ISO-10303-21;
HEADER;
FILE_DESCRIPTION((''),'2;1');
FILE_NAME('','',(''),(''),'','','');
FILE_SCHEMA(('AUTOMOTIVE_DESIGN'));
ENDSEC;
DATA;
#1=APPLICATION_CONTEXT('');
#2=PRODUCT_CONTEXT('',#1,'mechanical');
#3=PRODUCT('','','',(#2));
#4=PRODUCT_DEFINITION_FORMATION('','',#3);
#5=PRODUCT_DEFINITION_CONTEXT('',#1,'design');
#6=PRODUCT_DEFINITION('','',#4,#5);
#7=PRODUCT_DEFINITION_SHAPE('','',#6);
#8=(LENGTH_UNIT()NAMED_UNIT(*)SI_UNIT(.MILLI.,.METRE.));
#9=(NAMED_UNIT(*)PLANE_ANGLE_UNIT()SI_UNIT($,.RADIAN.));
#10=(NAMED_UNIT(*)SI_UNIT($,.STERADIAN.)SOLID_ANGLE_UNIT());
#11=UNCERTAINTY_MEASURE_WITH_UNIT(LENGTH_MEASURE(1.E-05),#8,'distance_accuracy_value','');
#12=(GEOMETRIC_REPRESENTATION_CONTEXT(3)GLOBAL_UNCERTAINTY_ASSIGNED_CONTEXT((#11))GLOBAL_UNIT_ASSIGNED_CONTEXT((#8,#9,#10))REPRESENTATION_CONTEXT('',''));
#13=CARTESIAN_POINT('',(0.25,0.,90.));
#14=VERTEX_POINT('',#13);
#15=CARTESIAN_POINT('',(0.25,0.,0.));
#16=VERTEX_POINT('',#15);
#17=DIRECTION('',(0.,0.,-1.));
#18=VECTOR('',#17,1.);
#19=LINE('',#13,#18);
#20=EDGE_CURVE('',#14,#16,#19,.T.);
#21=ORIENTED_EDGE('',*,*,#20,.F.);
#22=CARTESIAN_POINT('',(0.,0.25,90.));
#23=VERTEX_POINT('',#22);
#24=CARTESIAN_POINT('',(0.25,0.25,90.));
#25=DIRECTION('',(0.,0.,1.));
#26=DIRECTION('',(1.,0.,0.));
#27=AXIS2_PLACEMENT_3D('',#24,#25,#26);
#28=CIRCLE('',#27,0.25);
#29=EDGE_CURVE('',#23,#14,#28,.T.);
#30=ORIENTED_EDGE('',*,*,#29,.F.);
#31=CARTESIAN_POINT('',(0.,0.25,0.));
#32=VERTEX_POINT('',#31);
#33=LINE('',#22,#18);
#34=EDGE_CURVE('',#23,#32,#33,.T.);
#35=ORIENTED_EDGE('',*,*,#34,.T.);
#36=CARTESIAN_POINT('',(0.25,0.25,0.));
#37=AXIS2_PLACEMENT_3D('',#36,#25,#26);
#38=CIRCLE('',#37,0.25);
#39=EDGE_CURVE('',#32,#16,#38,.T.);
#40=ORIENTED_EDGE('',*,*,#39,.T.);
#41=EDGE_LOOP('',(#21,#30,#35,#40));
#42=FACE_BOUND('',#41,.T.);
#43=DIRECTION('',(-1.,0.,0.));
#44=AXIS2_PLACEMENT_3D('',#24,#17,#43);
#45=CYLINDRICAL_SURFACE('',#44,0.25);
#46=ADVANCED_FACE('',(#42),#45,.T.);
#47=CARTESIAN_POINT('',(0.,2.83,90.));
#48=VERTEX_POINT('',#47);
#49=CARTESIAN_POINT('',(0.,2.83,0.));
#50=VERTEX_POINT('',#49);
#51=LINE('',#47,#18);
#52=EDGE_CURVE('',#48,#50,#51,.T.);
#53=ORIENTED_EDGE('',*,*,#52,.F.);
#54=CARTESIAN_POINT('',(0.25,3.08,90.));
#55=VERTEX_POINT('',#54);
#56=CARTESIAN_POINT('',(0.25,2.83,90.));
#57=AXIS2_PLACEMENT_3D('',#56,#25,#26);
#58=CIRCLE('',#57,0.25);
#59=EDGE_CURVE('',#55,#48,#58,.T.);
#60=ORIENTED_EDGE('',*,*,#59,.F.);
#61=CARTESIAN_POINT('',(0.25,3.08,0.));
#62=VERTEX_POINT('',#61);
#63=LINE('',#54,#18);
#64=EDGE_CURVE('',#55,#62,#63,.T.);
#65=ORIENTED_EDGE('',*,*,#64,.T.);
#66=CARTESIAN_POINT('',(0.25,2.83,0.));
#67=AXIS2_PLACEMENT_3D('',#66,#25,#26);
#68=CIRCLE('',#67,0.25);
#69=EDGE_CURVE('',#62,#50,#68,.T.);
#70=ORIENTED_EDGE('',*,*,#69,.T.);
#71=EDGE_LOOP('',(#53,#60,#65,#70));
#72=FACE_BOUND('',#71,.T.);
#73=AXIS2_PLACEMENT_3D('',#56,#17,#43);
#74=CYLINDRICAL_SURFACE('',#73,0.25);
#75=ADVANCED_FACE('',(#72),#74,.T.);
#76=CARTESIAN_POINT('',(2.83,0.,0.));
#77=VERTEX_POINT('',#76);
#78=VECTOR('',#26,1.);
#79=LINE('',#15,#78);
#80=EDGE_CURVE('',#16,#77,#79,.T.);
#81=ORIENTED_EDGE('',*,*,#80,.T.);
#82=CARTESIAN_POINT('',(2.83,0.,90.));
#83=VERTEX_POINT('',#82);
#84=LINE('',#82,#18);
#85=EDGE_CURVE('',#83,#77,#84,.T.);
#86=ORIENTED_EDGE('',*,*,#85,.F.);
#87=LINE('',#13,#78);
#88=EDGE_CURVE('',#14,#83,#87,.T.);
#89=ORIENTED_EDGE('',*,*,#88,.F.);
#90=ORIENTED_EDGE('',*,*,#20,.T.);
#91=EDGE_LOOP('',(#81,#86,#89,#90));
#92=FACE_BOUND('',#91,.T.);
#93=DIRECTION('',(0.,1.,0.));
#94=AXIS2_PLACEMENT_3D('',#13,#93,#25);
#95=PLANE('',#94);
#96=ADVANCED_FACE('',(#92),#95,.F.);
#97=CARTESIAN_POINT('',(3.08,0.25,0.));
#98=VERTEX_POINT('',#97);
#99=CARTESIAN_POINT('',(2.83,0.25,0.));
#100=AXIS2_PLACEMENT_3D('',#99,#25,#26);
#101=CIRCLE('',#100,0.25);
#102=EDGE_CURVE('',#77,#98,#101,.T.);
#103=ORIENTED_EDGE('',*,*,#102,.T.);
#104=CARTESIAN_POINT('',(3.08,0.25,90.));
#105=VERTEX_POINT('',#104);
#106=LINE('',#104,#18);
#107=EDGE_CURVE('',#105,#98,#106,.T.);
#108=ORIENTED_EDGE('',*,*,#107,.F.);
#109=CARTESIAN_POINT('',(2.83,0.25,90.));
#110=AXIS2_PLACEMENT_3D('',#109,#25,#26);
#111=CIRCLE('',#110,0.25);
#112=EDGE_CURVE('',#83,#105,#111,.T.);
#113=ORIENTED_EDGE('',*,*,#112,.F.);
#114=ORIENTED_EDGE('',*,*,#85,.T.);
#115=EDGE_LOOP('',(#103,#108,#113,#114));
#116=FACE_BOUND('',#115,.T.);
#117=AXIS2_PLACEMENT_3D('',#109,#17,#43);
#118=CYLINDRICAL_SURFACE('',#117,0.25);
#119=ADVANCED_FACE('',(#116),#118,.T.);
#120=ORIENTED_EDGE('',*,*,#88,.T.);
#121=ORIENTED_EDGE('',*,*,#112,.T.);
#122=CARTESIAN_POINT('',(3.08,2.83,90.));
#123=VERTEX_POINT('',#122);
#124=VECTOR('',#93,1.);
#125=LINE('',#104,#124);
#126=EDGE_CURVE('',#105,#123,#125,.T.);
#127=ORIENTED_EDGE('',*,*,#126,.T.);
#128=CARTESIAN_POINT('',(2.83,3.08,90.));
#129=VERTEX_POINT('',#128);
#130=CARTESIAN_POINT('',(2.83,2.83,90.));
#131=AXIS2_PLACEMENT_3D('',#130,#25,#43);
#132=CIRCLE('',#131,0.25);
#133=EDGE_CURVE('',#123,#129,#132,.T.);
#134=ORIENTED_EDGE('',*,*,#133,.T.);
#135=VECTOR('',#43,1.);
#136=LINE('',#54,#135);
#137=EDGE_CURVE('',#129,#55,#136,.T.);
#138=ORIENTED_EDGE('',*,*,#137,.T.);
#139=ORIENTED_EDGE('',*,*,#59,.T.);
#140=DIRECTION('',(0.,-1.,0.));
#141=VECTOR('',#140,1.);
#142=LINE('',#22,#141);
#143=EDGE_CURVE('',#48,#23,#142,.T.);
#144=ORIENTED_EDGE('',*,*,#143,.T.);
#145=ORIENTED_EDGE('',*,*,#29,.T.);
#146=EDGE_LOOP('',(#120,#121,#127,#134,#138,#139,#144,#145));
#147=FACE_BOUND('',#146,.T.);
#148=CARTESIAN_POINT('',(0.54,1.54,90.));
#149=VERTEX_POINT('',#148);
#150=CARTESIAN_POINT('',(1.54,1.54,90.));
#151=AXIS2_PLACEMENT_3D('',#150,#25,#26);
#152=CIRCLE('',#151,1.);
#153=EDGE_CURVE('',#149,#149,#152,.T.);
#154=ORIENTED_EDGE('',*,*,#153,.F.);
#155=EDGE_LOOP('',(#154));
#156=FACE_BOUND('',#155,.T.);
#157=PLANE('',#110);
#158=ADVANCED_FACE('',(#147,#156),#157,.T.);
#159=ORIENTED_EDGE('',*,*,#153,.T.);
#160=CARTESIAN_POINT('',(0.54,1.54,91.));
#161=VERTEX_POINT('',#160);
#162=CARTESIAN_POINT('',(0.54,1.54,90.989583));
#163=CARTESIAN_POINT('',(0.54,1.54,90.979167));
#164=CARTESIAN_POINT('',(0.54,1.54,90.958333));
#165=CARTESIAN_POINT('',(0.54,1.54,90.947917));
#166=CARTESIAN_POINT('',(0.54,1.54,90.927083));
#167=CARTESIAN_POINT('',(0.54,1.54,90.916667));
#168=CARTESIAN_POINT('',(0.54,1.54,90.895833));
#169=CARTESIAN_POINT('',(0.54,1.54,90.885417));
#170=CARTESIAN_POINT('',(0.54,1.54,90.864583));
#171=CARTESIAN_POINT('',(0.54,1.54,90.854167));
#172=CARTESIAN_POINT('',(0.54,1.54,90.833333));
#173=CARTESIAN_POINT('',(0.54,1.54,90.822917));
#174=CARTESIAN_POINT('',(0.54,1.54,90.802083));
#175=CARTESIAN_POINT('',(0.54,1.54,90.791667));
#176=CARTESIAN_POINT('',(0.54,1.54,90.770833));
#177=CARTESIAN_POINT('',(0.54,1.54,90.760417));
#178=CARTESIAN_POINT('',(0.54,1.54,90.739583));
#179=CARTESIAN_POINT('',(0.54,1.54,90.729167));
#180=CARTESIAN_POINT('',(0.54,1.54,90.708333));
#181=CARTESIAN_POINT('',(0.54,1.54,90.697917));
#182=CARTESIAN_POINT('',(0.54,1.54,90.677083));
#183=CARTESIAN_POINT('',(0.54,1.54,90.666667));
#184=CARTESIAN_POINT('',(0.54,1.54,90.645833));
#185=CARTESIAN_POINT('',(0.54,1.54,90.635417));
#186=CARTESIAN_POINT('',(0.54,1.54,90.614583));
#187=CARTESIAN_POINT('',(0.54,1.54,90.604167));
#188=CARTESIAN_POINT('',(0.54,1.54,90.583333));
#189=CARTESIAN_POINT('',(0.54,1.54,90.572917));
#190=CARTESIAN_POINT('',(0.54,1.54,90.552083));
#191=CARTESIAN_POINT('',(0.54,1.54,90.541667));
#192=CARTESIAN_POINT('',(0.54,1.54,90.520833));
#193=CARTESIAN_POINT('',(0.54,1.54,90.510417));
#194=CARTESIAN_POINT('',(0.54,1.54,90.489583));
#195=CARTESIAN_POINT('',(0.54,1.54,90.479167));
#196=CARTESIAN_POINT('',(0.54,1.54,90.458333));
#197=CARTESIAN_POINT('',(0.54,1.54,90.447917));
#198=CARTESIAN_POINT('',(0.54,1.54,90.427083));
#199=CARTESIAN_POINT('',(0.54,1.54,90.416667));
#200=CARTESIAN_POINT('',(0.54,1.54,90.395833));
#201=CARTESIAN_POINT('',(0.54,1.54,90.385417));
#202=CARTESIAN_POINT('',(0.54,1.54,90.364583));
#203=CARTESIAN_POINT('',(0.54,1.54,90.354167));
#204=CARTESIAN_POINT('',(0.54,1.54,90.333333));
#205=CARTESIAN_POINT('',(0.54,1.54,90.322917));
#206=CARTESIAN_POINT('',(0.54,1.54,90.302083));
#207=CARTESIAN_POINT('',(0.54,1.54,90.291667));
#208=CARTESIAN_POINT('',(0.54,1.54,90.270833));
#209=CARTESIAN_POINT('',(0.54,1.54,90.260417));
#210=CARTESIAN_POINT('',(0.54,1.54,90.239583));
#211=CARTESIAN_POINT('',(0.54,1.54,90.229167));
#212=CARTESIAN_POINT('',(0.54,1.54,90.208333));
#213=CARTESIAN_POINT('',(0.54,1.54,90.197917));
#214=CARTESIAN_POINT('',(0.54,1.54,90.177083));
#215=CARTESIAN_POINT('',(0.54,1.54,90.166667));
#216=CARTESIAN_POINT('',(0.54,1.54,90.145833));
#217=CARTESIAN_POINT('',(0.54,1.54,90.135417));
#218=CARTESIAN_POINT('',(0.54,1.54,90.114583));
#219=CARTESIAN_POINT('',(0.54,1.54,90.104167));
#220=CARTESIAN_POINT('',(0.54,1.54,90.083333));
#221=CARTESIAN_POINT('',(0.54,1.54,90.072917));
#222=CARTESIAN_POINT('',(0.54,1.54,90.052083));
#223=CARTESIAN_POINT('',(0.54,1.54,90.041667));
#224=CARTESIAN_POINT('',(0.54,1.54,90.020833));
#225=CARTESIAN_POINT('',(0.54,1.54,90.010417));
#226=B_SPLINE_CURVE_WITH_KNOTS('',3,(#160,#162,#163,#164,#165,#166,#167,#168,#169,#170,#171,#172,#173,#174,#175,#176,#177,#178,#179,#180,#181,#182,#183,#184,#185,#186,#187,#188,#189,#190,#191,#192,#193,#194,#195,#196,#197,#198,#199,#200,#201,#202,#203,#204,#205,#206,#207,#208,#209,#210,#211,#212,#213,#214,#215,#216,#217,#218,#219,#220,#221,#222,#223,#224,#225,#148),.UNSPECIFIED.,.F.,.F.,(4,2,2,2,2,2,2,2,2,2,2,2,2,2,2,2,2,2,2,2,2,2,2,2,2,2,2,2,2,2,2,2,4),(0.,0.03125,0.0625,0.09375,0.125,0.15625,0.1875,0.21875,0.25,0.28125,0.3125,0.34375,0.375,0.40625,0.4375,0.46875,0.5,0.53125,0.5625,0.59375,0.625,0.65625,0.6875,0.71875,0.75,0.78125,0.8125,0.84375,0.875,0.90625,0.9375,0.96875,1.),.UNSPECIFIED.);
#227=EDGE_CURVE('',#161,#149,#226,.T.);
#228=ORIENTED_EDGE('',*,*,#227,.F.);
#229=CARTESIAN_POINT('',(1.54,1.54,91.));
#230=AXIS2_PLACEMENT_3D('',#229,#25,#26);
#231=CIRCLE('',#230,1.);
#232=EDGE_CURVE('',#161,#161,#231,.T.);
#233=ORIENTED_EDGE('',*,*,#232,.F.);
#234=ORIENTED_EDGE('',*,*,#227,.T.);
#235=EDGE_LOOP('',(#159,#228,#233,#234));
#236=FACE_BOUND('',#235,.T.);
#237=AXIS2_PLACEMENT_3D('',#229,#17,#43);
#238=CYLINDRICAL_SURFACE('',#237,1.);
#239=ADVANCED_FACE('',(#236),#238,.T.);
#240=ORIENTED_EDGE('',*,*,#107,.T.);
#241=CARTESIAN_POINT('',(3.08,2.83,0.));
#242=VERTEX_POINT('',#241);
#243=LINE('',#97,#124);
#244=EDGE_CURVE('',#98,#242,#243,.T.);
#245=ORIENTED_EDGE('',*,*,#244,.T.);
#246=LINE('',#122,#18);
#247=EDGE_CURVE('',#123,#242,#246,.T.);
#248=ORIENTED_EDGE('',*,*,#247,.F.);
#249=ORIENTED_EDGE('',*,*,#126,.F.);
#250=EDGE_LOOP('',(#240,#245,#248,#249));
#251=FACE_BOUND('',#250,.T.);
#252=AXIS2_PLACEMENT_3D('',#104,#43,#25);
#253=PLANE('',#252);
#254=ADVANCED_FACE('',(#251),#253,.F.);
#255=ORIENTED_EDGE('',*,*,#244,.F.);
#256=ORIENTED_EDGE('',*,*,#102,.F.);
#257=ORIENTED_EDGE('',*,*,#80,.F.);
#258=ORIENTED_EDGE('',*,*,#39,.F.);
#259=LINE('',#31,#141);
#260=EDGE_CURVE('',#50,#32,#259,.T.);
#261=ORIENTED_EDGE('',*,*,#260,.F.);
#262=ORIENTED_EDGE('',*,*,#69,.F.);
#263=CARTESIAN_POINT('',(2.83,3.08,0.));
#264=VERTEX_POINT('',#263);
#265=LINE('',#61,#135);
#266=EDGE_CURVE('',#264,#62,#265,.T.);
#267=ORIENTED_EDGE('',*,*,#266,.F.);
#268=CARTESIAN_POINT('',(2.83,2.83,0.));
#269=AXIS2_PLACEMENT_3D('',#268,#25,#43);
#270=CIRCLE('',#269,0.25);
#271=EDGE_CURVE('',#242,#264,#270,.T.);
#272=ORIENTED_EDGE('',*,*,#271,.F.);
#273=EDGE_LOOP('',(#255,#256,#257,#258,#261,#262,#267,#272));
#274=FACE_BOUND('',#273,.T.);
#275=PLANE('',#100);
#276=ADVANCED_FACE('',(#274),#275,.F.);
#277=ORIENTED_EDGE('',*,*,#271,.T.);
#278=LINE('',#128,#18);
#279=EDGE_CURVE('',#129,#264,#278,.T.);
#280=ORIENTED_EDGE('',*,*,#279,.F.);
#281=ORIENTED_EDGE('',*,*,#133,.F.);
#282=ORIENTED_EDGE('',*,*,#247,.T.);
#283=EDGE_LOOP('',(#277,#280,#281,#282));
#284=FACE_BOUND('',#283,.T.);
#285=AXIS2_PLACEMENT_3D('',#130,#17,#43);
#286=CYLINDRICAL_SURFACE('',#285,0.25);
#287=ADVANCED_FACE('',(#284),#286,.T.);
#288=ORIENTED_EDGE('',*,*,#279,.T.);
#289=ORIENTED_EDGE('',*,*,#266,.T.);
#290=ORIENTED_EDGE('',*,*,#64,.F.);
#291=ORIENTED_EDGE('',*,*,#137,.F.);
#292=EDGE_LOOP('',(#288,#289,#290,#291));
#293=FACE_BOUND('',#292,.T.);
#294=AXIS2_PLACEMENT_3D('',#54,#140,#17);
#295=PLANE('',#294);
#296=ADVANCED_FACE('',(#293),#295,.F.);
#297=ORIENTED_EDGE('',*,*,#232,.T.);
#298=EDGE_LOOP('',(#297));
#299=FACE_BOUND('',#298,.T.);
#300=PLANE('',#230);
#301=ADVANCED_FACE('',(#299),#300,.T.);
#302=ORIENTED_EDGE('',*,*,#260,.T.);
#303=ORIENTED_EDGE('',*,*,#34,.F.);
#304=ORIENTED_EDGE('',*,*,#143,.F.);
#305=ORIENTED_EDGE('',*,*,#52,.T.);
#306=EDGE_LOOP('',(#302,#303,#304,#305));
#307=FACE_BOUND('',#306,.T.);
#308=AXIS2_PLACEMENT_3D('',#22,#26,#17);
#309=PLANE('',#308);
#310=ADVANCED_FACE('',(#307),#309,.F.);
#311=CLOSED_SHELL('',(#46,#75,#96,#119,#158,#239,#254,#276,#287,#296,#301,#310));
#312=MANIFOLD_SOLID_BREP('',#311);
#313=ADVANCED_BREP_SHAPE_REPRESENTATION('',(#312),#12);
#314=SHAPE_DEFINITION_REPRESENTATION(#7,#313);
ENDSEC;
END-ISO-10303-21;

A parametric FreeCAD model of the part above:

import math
import FreeCAD as App
import Part
import Sketcher
Q = App.Units.Quantity

doc = App.newDocument("Part")
body = doc.addObject("PartDesign::Body", "Body")

# Sketch on XY plane
sketch1 = body.newObject("Sketcher::SketchObject", "Sketch")
sketch1.AttachmentSupport = (doc.getObject("XY_Plane"), [""])
sketch1.MapMode = "FlatFace"
sketch1.addGeometry([
    Part.LineSegment(App.Vector(0.25, 0, 0), App.Vector(2.83, 0, 0)),  # 0
    Part.ArcOfCircle(Part.Circle(App.Vector(2.83, 0.25, 0), App.Vector(0, 0, 1), 0.25), math.radians(-90), math.radians(0)),  # 1
    Part.LineSegment(App.Vector(3.08, 0.25, 0), App.Vector(3.08, 2.83, 0)),  # 2
    Part.ArcOfCircle(Part.Circle(App.Vector(2.83, 2.83, 0), App.Vector(0, 0, 1), 0.25), math.radians(0), math.radians(90)),  # 3
    Part.LineSegment(App.Vector(2.83, 3.08, 0), App.Vector(0.25, 3.08, 0)),  # 4
    Part.ArcOfCircle(Part.Circle(App.Vector(0.25, 2.83, 0), App.Vector(0, 0, 1), 0.25), math.radians(90), math.radians(180)),  # 5
    Part.LineSegment(App.Vector(0, 2.83, 0), App.Vector(0, 0.25, 0)),  # 6
    Part.ArcOfCircle(Part.Circle(App.Vector(0.25, 0.25, 0), App.Vector(0, 0, 1), 0.25), math.radians(-180), math.radians(-90)),  # 7
], False)
sketch1.addConstraint([
    Sketcher.Constraint("Tangent", 0, 2, 1, 1),
    Sketcher.Constraint("Tangent", 1, 2, 2, 1),
    Sketcher.Constraint("Tangent", 2, 2, 3, 1),
    Sketcher.Constraint("Tangent", 3, 2, 4, 1),
    Sketcher.Constraint("Tangent", 4, 2, 5, 1),
    Sketcher.Constraint("Tangent", 5, 2, 6, 1),
    Sketcher.Constraint("Tangent", 6, 2, 7, 1),
    Sketcher.Constraint("Tangent", 7, 2, 0, 1),
    Sketcher.Constraint("Horizontal", 0),
    Sketcher.Constraint("Vertical", 2),
    Sketcher.Constraint("Horizontal", 4),
    Sketcher.Constraint("Vertical", 6),
    Sketcher.Constraint("Equal", 1, 3),
    Sketcher.Constraint("Equal", 3, 5),
    Sketcher.Constraint("Equal", 5, 7),
    Sketcher.Constraint("PointOnObject", 0, 2, -1),
    Sketcher.Constraint("PointOnObject", 5, 2, -2),
    Sketcher.Constraint("Equal", 4, 2),
    Sketcher.Constraint("Radius", 1, Q("0.25 mm")),
    Sketcher.Constraint("DistanceX", 0, 1, 0, 2, Q("2.58 mm")),
])
pad1 = body.newObject("PartDesign::Pad", "Pad")
pad1.Profile = sketch1
pad1.Length = 90

# Sketch on XY plane
sketch2 = body.newObject("Sketcher::SketchObject", "Sketch001")
sketch2.AttachmentSupport = (doc.getObject("XY_Plane"), [""])
sketch2.MapMode = "FlatFace"
sketch2.AttachmentOffset = App.Placement(App.Vector(0, 0, 90), App.Rotation())
sketch2.addGeometry(Part.Circle(App.Vector(1.5, 1.5, 0), App.Vector(0, 0, 1), 1), False)
sketch2.addConstraint([
    Sketcher.Constraint("Diameter", 0, Q("2 mm")),
    Sketcher.Constraint("DistanceX", -1, 1, 0, 3, Q("1.54 mm")),
    Sketcher.Constraint("DistanceY", -1, 1, 0, 3, Q("1.54 mm")),
])
pad2 = body.newObject("PartDesign::Pad", "Pad001")
pad2.Profile = sketch2
pad2.Length = 1

doc.recompute()
